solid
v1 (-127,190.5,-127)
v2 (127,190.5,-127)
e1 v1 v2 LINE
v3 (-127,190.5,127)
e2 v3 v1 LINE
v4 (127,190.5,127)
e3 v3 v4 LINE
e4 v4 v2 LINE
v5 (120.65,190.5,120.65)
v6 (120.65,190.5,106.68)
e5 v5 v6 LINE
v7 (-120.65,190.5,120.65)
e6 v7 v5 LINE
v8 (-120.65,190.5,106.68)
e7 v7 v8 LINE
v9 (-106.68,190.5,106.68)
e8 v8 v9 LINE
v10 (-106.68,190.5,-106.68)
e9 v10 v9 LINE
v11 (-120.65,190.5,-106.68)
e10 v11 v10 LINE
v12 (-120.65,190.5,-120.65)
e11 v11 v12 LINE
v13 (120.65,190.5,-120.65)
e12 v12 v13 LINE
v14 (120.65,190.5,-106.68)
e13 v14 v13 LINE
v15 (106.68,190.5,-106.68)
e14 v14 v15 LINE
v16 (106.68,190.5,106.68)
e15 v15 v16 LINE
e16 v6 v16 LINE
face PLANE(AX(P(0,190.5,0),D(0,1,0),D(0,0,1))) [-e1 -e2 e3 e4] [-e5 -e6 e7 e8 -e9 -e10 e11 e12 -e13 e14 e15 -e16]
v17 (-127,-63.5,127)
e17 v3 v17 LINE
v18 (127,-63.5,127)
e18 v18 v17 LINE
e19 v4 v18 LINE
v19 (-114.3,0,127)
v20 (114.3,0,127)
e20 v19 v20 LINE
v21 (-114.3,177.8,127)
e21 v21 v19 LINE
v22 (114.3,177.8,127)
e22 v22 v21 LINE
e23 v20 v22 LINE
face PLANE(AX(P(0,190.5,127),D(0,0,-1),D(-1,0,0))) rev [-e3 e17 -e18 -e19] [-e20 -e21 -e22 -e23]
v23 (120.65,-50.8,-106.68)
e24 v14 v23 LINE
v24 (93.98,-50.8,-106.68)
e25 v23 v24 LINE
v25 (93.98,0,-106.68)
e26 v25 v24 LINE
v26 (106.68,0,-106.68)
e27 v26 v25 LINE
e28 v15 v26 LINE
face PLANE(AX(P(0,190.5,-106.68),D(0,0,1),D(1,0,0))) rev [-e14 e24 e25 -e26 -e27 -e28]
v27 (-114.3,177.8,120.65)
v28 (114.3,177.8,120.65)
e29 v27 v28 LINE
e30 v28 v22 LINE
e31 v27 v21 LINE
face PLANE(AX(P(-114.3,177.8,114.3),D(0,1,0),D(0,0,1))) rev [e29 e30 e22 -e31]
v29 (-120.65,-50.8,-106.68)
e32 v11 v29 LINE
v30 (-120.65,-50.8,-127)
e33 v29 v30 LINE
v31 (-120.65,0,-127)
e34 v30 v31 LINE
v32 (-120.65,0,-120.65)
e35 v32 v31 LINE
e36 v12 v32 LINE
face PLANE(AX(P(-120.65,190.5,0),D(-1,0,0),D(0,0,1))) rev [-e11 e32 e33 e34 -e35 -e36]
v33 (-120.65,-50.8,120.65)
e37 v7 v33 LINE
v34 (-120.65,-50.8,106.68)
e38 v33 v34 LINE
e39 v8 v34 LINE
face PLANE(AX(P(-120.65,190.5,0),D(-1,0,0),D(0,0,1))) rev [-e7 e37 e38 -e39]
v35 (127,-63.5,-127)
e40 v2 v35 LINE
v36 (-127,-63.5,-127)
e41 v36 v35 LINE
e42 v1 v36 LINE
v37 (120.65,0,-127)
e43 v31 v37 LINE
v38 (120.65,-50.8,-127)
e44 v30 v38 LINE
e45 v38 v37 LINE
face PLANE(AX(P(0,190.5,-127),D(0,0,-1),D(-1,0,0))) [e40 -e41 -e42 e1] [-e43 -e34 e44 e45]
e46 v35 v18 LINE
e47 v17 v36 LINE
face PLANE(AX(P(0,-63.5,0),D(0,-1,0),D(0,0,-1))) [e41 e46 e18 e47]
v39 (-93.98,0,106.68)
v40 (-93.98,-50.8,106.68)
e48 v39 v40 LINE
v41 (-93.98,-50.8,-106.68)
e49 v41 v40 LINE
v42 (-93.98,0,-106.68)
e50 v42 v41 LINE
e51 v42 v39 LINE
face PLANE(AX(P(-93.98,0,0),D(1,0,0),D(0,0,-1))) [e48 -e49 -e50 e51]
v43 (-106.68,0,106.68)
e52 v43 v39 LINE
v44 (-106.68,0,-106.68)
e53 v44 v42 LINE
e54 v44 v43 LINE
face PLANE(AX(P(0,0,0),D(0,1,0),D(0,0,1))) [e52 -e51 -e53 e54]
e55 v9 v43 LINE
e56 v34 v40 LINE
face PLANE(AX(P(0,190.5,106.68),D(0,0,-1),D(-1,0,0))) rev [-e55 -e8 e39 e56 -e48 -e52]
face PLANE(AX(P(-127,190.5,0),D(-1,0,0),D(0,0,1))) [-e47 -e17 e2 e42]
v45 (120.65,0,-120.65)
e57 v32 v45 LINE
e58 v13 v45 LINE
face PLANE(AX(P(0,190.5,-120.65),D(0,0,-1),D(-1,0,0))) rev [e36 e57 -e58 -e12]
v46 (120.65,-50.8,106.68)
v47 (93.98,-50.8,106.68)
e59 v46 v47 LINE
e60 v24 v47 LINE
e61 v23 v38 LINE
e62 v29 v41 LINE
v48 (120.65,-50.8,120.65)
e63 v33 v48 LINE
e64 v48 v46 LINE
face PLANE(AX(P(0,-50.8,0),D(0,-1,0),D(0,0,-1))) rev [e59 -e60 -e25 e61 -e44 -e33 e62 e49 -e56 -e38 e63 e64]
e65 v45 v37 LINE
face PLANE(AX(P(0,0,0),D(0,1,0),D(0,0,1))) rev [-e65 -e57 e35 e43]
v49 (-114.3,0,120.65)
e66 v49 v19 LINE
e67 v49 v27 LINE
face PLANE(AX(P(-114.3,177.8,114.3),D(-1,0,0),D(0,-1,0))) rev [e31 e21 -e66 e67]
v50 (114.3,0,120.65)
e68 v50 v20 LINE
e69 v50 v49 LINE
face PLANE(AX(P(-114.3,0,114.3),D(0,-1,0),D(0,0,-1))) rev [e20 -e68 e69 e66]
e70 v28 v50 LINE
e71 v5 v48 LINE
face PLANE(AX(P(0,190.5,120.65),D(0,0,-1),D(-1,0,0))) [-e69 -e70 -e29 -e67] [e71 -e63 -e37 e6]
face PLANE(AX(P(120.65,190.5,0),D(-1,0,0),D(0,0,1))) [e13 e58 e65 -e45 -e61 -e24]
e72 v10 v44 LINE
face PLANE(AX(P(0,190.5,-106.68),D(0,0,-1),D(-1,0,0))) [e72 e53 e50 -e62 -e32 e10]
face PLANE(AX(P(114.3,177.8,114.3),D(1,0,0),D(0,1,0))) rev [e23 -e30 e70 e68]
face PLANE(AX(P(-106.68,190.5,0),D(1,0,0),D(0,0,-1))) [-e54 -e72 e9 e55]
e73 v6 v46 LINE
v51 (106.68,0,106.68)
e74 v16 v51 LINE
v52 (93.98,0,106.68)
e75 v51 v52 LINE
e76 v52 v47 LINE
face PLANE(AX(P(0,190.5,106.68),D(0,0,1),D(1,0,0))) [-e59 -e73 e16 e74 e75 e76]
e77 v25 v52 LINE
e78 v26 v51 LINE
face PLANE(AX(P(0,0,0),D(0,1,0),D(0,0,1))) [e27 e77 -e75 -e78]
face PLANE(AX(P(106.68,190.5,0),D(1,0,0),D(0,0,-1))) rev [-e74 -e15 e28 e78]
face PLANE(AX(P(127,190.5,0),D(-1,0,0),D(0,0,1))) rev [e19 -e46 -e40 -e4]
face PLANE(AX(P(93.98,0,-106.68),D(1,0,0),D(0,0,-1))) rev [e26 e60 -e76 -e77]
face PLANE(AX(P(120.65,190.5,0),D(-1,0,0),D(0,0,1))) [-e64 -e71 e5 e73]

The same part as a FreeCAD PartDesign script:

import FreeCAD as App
import Part
import Sketcher
from FreeCAD import Vector
Q = App.Units.Quantity

doc = App.newDocument("Part")
body = doc.addObject("PartDesign::Body", "Body")

sketch1 = doc.addObject("Sketcher::SketchObject", "Sketch")
body.addObject(sketch1)
sketch1.AttachmentSupport = (doc.XZ_Plane, [""])
sketch1.MapMode = "FlatFace"
sketch1.addGeometry([
    Part.LineSegment(Vector(-127, -127, 0), Vector(-127, 127, 0)),
    Part.LineSegment(Vector(-127, 127, 0), Vector(127, 127, 0)),
    Part.LineSegment(Vector(127, 127, 0), Vector(127, -127, 0)),
    Part.LineSegment(Vector(127, -127, 0), Vector(-127, -127, 0)),
    Part.LineSegment(Vector(-120.65, 120.65, 0), Vector(-120.65, 106.68, 0)),
    Part.LineSegment(Vector(-120.65, 106.68, 0), Vector(-106.68, 106.68, 0)),
    Part.LineSegment(Vector(-106.68, 106.68, 0), Vector(-106.68, -106.68, 0)),
    Part.LineSegment(Vector(-106.68, -106.68, 0), Vector(-120.65, -106.68, 0)),
    Part.LineSegment(Vector(-120.65, -106.68, 0), Vector(-120.65, -120.65, 0)),
    Part.LineSegment(Vector(-120.65, -120.65, 0), Vector(120.65, -120.65, 0)),
    Part.LineSegment(Vector(120.65, -120.65, 0), Vector(120.65, -106.68, 0)),
    Part.LineSegment(Vector(120.65, -106.68, 0), Vector(106.68, -106.68, 0)),
    Part.LineSegment(Vector(106.68, -106.68, 0), Vector(106.68, 106.68, 0)),
    Part.LineSegment(Vector(106.68, 106.68, 0), Vector(120.65, 106.68, 0)),
    Part.LineSegment(Vector(120.65, 106.68, 0), Vector(120.65, 120.65, 0)),
    Part.LineSegment(Vector(120.65, 120.65, 0), Vector(-120.65, 120.65, 0)),
], False)
sketch1.addConstraint([
    Sketcher.Constraint("Coincident", 0, 2, 1, 1),
    Sketcher.Constraint("Coincident", 1, 2, 2, 1),
    Sketcher.Constraint("Coincident", 2, 2, 3, 1),
    Sketcher.Constraint("Coincident", 3, 2, 0, 1),
    Sketcher.Constraint("Coincident", 4, 2, 5, 1),
    Sketcher.Constraint("Coincident", 5, 2, 6, 1),
    Sketcher.Constraint("Coincident", 6, 2, 7, 1),
    Sketcher.Constraint("Coincident", 7, 2, 8, 1),
    Sketcher.Constraint("Coincident", 8, 2, 9, 1),
    Sketcher.Constraint("Coincident", 9, 2, 10, 1),
    Sketcher.Constraint("Coincident", 10, 2, 11, 1),
    Sketcher.Constraint("Coincident", 11, 2, 12, 1),
    Sketcher.Constraint("Coincident", 12, 2, 13, 1),
    Sketcher.Constraint("Coincident", 13, 2, 14, 1),
    Sketcher.Constraint("Coincident", 14, 2, 15, 1),
    Sketcher.Constraint("Coincident", 15, 2, 4, 1),
    Sketcher.Constraint("Vertical", 0),
    Sketcher.Constraint("Horizontal", 1),
    Sketcher.Constraint("Vertical", 2),
    Sketcher.Constraint("Horizontal", 3),
    Sketcher.Constraint("Vertical", 4),
    Sketcher.Constraint("Horizontal", 5),
    Sketcher.Constraint("Vertical", 6),
    Sketcher.Constraint("Horizontal", 7),
    Sketcher.Constraint("Vertical", 8),
    Sketcher.Constraint("Horizontal", 9),
    Sketcher.Constraint("Vertical", 10),
    Sketcher.Constraint("Horizontal", 11),
    Sketcher.Constraint("Vertical", 12),
    Sketcher.Constraint("Horizontal", 13),
    Sketcher.Constraint("Vertical", 14),
    Sketcher.Constraint("Horizontal", 15),
    Sketcher.Constraint("Symmetric", 0, 2, 2, 2, -1, 1),
    Sketcher.Constraint("Symmetric", 4, 2, 10, 2, -1, 1),
    Sketcher.Constraint("Symmetric", 6, 2, 12, 2, -1, 1),
    Sketcher.Constraint("Symmetric", 8, 2, 14, 2, -1, 1),
    Sketcher.Constraint("Symmetric", 7, 2, 10, 2, -2),
    Sketcher.Constraint("Equal", 3, 0),
    Sketcher.Constraint("Equal", 13, 4),
    Sketcher.Constraint("DistanceX", 1, 1, 1, 2, Q("10 in")),
    Sketcher.Constraint("DistanceX", 9, 1, 9, 2, Q("9.5 in")),
    Sketcher.Constraint("DistanceY", 6, 2, 6, 1, Q("8.4 in")),
    Sketcher.Constraint("DistanceX", 5, 1, 5, 2, Q("0.55 in")),
])
pad1 = doc.addObject("PartDesign::Pad", "Pad")
body.addObject(pad1)
pad1.Profile = sketch1
pad1.Length = Q("7.5 in")
pad1.Reversed = True

sketch2 = doc.addObject("Sketcher::SketchObject", "Sketch001")
body.addObject(sketch2)
sketch2.AttachmentSupport = (doc.XZ_Plane, [""])
sketch2.MapMode = "FlatFace"
sketch2.addGeometry([
    Part.LineSegment(Vector(-127, 127, 0), Vector(-127, -127, 0)),
    Part.LineSegment(Vector(-127, -127, 0), Vector(-120.65, -127, 0)),
    Part.LineSegment(Vector(-120.65, -127, 0), Vector(-120.65, 120.65, 0)),
    Part.LineSegment(Vector(-120.65, 120.65, 0), Vector(120.65, 120.65, 0)),
    Part.LineSegment(Vector(120.65, 120.65, 0), Vector(120.65, -127, 0)),
    Part.LineSegment(Vector(120.65, -127, 0), Vector(127, -127, 0)),
    Part.LineSegment(Vector(127, -127, 0), Vector(127, 127, 0)),
    Part.LineSegment(Vector(127, 127, 0), Vector(-127, 127, 0)),
], False)
sketch2.addConstraint([
    Sketcher.Constraint("Coincident", 0, 2, 1, 1),
    Sketcher.Constraint("Coincident", 1, 2, 2, 1),
    Sketcher.Constraint("Coincident", 2, 2, 3, 1),
    Sketcher.Constraint("Coincident", 3, 2, 4, 1),
    Sketcher.Constraint("Coincident", 4, 2, 5, 1),
    Sketcher.Constraint("Coincident", 5, 2, 6, 1),
    Sketcher.Constraint("Coincident", 6, 2, 7, 1),
    Sketcher.Constraint("Coincident", 7, 2, 0, 1),
    Sketcher.Constraint("Vertical", 0),
    Sketcher.Constraint("Horizontal", 1),
    Sketcher.Constraint("Vertical", 2),
    Sketcher.Constraint("Horizontal", 3),
    Sketcher.Constraint("Vertical", 4),
    Sketcher.Constraint("Horizontal", 5),
    Sketcher.Constraint("Vertical", 6),
    Sketcher.Constraint("Horizontal", 7),
    Sketcher.Constraint("Symmetric", 0, 2, 6, 2, -1, 1),
    Sketcher.Constraint("Symmetric", 1, 2, 4, 2, -2),
    Sketcher.Constraint("Equal", 7, 0),
    Sketcher.Constraint("DistanceX", 7, 2, 7, 1, Q("10 in")),
    Sketcher.Constraint("DistanceX", 3, 1, 3, 2, Q("9.5 in")),
    Sketcher.Constraint("DistanceY", 2, 1, 2, 2, Q("9.75 in")),
])
pad2 = doc.addObject("PartDesign::Pad", "Pad001")
body.addObject(pad2)
pad2.Profile = sketch2
pad2.Length = Q("2 in")

sketch3 = doc.addObject("Sketcher::SketchObject", "Sketch002")
body.addObject(sketch3)
sketch3.AttachmentSupport = (doc.XZ_Plane, [""])
sketch3.MapMode = "FlatFace"
sketch3.AttachmentOffset = App.Placement(Vector(0, 0, 2 * 25.4), App.Rotation())
sketch3.addGeometry([
    Part.LineSegment(Vector(-127, 127, 0), Vector(-127, -127, 0)),
    Part.LineSegment(Vector(-127, -127, 0), Vector(127, -127, 0)),
    Part.LineSegment(Vector(127, -127, 0), Vector(127, 127, 0)),
    Part.LineSegment(Vector(127, 127, 0), Vector(-127, 127, 0)),
], False)
sketch3.addConstraint([
    Sketcher.Constraint("Coincident", 0, 2, 1, 1),
    Sketcher.Constraint("Coincident", 1, 2, 2, 1),
    Sketcher.Constraint("Coincident", 2, 2, 3, 1),
    Sketcher.Constraint("Coincident", 3, 2, 0, 1),
    Sketcher.Constraint("Vertical", 0),
    Sketcher.Constraint("Horizontal", 1),
    Sketcher.Constraint("Vertical", 2),
    Sketcher.Constraint("Horizontal", 3),
    Sketcher.Constraint("Symmetric", 0, 2, 2, 2, -1, 1),
    Sketcher.Constraint("Equal", 3, 0),
    Sketcher.Constraint("DistanceX", 1, 1, 1, 2, Q("10 in")),
])
pad3 = doc.addObject("PartDesign::Pad", "Pad002")
body.addObject(pad3)
pad3.Profile = sketch3
pad3.Length = Q("0.5 in")

sketch4 = doc.addObject("Sketcher::SketchObject", "Sketch003")
body.addObject(sketch4)
sketch4.AttachmentSupport = (doc.XY_Plane, [""])
sketch4.MapMode = "FlatFace"
sketch4.AttachmentOffset = App.Placement(Vector(0, 0, 5 * 25.4), App.Rotation())
sketch4.addGeometry([
    Part.LineSegment(Vector(-114.3, 177.8, 0), Vector(-114.3, 0, 0)),
    Part.LineSegment(Vector(-114.3, 0, 0), Vector(114.3, 0, 0)),
    Part.LineSegment(Vector(114.3, 0, 0), Vector(114.3, 177.8, 0)),
    Part.LineSegment(Vector(114.3, 177.8, 0), Vector(-114.3, 177.8, 0)),
], False)
sketch4.addConstraint([
    Sketcher.Constraint("Coincident", 0, 2, 1, 1),
    Sketcher.Constraint("Coincident", 1, 2, 2, 1),
    Sketcher.Constraint("Coincident", 2, 2, 3, 1),
    Sketcher.Constraint("Coincident", 3, 2, 0, 1),
    Sketcher.Constraint("Vertical", 0),
    Sketcher.Constraint("Horizontal", 1),
    Sketcher.Constraint("Vertical", 2),
    Sketcher.Constraint("Horizontal", 3),
    Sketcher.Constraint("Symmetric", 0, 2, 1, 2, -1, 1),
    Sketcher.Constraint("DistanceX", 1, 1, 1, 2, Q("9 in")),
    Sketcher.Constraint("DistanceY", 0, 2, 0, 1, Q("7 in")),
])
pocket1 = doc.addObject("PartDesign::Pocket", "Pocket")
body.addObject(pocket1)
pocket1.Profile = sketch4
pocket1.Length = Q("0.5 in")

sketch5 = doc.addObject("Sketcher::SketchObject", "Sketch004")
body.addObject(sketch5)
sketch5.AttachmentSupport = (doc.XZ_Plane, [""])
sketch5.MapMode = "FlatFace"
sketch5.addGeometry([
    Part.LineSegment(Vector(106.68, -106.68, 0), Vector(106.68, 106.68, 0)),
    Part.LineSegment(Vector(106.68, 106.68, 0), Vector(120.65, 106.68, 0)),
    Part.LineSegment(Vector(120.65, 106.68, 0), Vector(120.65, -106.68, 0)),
    Part.LineSegment(Vector(120.65, -106.68, 0), Vector(106.68, -106.68, 0)),
    Part.LineSegment(Vector(-120.65, -106.68, 0), Vector(-120.65, 106.68, 0)),
    Part.LineSegment(Vector(-120.65, 106.68, 0), Vector(-106.68, 106.68, 0)),
    Part.LineSegment(Vector(-106.68, 106.68, 0), Vector(-106.68, -106.68, 0)),
    Part.LineSegment(Vector(-106.68, -106.68, 0), Vector(-120.65, -106.68, 0)),
], False)
sketch5.addConstraint([
    Sketcher.Constraint("Coincident", 0, 2, 1, 1),
    Sketcher.Constraint("Coincident", 1, 2, 2, 1),
    Sketcher.Constraint("Coincident", 2, 2, 3, 1),
    Sketcher.Constraint("Coincident", 3, 2, 0, 1),
    Sketcher.Constraint("Coincident", 4, 2, 5, 1),
    Sketcher.Constraint("Coincident", 5, 2, 6, 1),
    Sketcher.Constraint("Coincident", 6, 2, 7, 1),
    Sketcher.Constraint("Coincident", 7, 2, 4, 1),
    Sketcher.Constraint("Vertical", 0),
    Sketcher.Constraint("Horizontal", 1),
    Sketcher.Constraint("Vertical", 2),
    Sketcher.Constraint("Horizontal", 3),
    Sketcher.Constraint("Vertical", 4),
    Sketcher.Constraint("Horizontal", 5),
    Sketcher.Constraint("Vertical", 6),
    Sketcher.Constraint("Horizontal", 7),
    Sketcher.Constraint("Symmetric", 2, 2, 4, 2, -1, 1),
    Sketcher.Constraint("Symmetric", 0, 2, 6, 2, -1, 1),
    Sketcher.Constraint("Horizontal", 1, 2, 4, 2),
    Sketcher.Constraint("DistanceY", 0, 1, 0, 2, Q("8.4 in")),
    Sketcher.Constraint("DistanceX", 1, 1, 1, 2, Q("0.55 in")),
    Sketcher.Constraint("DistanceX", -1, 1, 0, 2, Q("4.2 in")),
])
pad4 = doc.addObject("PartDesign::Pad", "Pad003")
body.addObject(pad4)
pad4.Profile = sketch5
pad4.Length = Q("2 in")

sketch6 = doc.addObject("Sketcher::SketchObject", "Sketch005")
body.addObject(sketch6)
sketch6.AttachmentSupport = (doc.XZ_Plane, [""])
sketch6.MapMode = "FlatFace"
sketch6.AttachmentOffset = App.Placement(Vector(0, 0, 2 * 25.4), App.Rotation())
sketch6.addGeometry([
    Part.LineSegment(Vector(-106.68, -106.68, 0), Vector(-106.68, 106.68, 0)),
    Part.LineSegment(Vector(-106.68, 106.68, 0), Vector(-93.98, 106.68, 0)),
    Part.LineSegment(Vector(-93.98, 106.68, 0), Vector(-93.98, -106.68, 0)),
    Part.LineSegment(Vector(-93.98, -106.68, 0), Vector(-106.68, -106.68, 0)),
    Part.LineSegment(Vector(93.98, -106.68, 0), Vector(93.98, 106.68, 0)),
    Part.LineSegment(Vector(93.98, 106.68, 0), Vector(106.68, 106.68, 0)),
    Part.LineSegment(Vector(106.68, 106.68, 0), Vector(106.68, -106.68, 0)),
    Part.LineSegment(Vector(106.68, -106.68, 0), Vector(93.98, -106.68, 0)),
], False)
sketch6.addConstraint([
    Sketcher.Constraint("Coincident", 0, 2, 1, 1),
    Sketcher.Constraint("Coincident", 1, 2, 2, 1),
    Sketcher.Constraint("Coincident", 2, 2, 3, 1),
    Sketcher.Constraint("Coincident", 3, 2, 0, 1),
    Sketcher.Constraint("Coincident", 4, 2, 5, 1),
    Sketcher.Constraint("Coincident", 5, 2, 6, 1),
    Sketcher.Constraint("Coincident", 6, 2, 7, 1),
    Sketcher.Constraint("Coincident", 7, 2, 4, 1),
    Sketcher.Constraint("Vertical", 0),
    Sketcher.Constraint("Horizontal", 1),
    Sketcher.Constraint("Vertical", 2),
    Sketcher.Constraint("Horizontal", 3),
    Sketcher.Constraint("Vertical", 4),
    Sketcher.Constraint("Horizontal", 5),
    Sketcher.Constraint("Vertical", 6),
    Sketcher.Constraint("Horizontal", 7),
    Sketcher.Constraint("Symmetric", 2, 2, 4, 2, -1, 1),
    Sketcher.Constraint("Symmetric", 0, 2, 6, 2, -1, 1),
    Sketcher.Constraint("Horizontal", 1, 2, 4, 2),
    Sketcher.Constraint("DistanceX", 1, 1, 1, 2, Q("0.5 in")),
    Sketcher.Constraint("DistanceY", 0, 1, 0, 2, Q("8.4 in")),
    Sketcher.Constraint("DistanceX", 0, 2, -1, 1, Q("4.2 in")),
])
pad5 = doc.addObject("PartDesign::Pad", "Pad004")
body.addObject(pad5)
pad5.Profile = sketch6
pad5.Length = Q("2 in")
pad5.Reversed = True

doc.recompute()
